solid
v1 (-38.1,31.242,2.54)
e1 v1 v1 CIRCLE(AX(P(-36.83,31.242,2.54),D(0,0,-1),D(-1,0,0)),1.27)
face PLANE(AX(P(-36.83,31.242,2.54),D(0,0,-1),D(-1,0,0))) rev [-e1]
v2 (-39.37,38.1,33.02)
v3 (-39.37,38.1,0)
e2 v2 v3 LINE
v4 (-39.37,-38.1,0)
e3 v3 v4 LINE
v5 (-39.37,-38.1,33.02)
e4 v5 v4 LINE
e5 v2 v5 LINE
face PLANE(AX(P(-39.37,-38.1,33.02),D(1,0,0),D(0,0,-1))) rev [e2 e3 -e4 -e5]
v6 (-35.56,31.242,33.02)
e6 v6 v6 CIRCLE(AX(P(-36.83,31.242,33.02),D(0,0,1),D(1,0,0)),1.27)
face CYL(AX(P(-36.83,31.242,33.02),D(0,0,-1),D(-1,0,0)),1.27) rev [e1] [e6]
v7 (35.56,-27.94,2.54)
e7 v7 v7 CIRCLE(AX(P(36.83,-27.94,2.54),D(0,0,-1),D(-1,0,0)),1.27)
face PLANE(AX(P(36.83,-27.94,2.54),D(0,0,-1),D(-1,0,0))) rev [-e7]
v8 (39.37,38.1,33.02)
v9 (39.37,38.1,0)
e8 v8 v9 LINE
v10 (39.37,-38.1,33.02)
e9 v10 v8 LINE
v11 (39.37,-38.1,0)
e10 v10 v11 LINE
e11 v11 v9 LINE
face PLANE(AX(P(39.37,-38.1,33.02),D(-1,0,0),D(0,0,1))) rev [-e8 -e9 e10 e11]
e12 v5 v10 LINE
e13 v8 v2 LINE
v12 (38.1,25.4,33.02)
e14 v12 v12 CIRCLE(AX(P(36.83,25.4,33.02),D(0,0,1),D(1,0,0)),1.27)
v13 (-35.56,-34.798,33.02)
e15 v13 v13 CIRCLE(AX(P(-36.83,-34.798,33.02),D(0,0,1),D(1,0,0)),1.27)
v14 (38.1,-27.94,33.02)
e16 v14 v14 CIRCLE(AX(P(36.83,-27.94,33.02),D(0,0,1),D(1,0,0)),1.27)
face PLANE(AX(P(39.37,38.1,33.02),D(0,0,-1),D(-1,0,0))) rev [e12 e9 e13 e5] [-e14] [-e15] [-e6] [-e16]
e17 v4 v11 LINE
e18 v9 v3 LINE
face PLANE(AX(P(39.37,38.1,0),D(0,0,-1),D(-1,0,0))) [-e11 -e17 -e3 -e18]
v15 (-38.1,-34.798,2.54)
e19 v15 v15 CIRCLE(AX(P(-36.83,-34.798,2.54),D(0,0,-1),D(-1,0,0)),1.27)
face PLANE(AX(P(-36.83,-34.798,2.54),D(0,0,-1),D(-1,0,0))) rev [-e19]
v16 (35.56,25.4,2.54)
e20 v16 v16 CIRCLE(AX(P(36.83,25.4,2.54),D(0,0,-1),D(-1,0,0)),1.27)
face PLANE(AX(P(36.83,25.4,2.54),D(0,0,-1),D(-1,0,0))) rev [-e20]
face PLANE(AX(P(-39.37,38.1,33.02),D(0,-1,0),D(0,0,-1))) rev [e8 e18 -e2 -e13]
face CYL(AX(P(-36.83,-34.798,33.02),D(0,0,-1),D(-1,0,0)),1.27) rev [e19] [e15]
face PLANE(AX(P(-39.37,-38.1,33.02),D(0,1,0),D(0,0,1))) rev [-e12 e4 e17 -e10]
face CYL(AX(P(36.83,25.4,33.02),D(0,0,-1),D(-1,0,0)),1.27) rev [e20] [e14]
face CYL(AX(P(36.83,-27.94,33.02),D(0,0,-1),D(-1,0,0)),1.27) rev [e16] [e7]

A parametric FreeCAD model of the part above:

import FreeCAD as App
import Part
import Sketcher
from FreeCAD import Vector
Q = App.Units.Quantity


def add_polygon(sketch, points):
    """Adds a closed chain of lines whose ends are joined by coincident constraints."""
    first, n = sketch.GeometryCount, len(points)
    for a, b in zip(points, points[1:] + points[:1]):
        sketch.addGeometry(Part.LineSegment(App.Vector(*a, 0), App.Vector(*b, 0)), False)
    for i in range(n):
        sketch.addConstraint(Sketcher.Constraint("Coincident", first + i, 2, first + (i + 1) % n, 1))

doc = App.newDocument("Part")
body = doc.addObject("PartDesign::Body", "Body")

# Sketch on XY plane
sketch1 = body.newObject("Sketcher::SketchObject", "Sketch")
sketch1.AttachmentSupport = (doc.getObject("XY_Plane"), [""])
sketch1.MapMode = "FlatFace"
add_polygon(sketch1, [(-39.4, 38.1), (-39.4, -38.1), (39.4, -38.1), (39.4, 38.1)])  # lines 0-3
sketch1.addGeometry(Part.Circle(Vector(-36.8, -34.8, 0), Vector(0, 0, 1), 1.3), False)  # 4
sketch1.addGeometry(Part.Circle(Vector(36.8, -27.9, 0), Vector(0, 0, 1), 1.3), False)  # 5
sketch1.addGeometry(Part.Circle(Vector(-36.8, 31.2, 0), Vector(0, 0, 1), 1.3), False)  # 6
sketch1.addGeometry(Part.Circle(Vector(36.8, 25.4, 0), Vector(0, 0, 1), 1.3), False)  # 7
sketch1.addConstraint([
    Sketcher.Constraint("Vertical", 0),
    Sketcher.Constraint("Horizontal", 1),
    Sketcher.Constraint("Vertical", 2),
    Sketcher.Constraint("Horizontal", 3),
    Sketcher.Constraint("Equal", 4, 5),
    Sketcher.Constraint("Equal", 5, 6),
    Sketcher.Constraint("Equal", 6, 7),
    Sketcher.Constraint("Symmetric", 0, 2, 2, 2, -1, 1),
    Sketcher.Constraint("Vertical", 4, 3, 6, 3),
    Sketcher.Constraint("Vertical", 5, 3, 7, 3),
    Sketcher.Constraint("Diameter", 4, Q("0.1 in")),
    Sketcher.Constraint("DistanceY", 0, 2, 0, 1, Q("3 in")),
    Sketcher.Constraint("DistanceX", 1, 1, 1, 2, Q("3.1 in")),
    Sketcher.Constraint("DistanceY", -1, 1, 7, 3, Q("1 in")),
    Sketcher.Constraint("DistanceX", 0, 2, 5, 3, Q("3 in")),
    Sketcher.Constraint("DistanceX", 4, 3, 1, 2, Q("3 in")),
    Sketcher.Constraint("DistanceY", 5, 3, -1, 1, Q("1.1 in")),
    Sketcher.Constraint("DistanceY", 4, 3, 6, 3, Q("2.6 in")),
    Sketcher.Constraint("DistanceY", 4, 3, -1, 1, Q("1.37 in")),
])
pad1 = body.newObject("PartDesign::Pad", "Pad")
pad1.Profile = sketch1
pad1.Length = Q("1.3 in")

# Sketch on XY plane
sketch2 = body.newObject("Sketcher::SketchObject", "Sketch001")
sketch2.AttachmentSupport = (doc.getObject("XY_Plane"), [""])
sketch2.MapMode = "FlatFace"
sketch2.addGeometry(Part.Circle(Vector(36.8, 25.4, 0), Vector(0, 0, 1), 1.3), False)
sketch2.addConstraint([
    Sketcher.Constraint("Diameter", 0, Q("0.1 in")),
    Sketcher.Constraint("DistanceY", -1, 1, 0, 3, Q("1 in")),
    Sketcher.Constraint("DistanceX", -1, 1, 0, 3, Q("1.45 in")),
])
pad2 = body.newObject("PartDesign::Pad", "Pad001")
pad2.Profile = sketch2
pad2.Length = Q("0.1 in")

# Sketch on XY plane
sketch3 = body.newObject("Sketcher::SketchObject", "Sketch002")
sketch3.AttachmentSupport = (doc.getObject("XY_Plane"), [""])
sketch3.MapMode = "FlatFace"
sketch3.addGeometry([
    Part.Circle(Vector(-36.8, 31.2, 0), Vector(0, 0, 1), 1.3),
    Part.Circle(Vector(-36.8, -34.8, 0), Vector(0, 0, 1), 1.3),
    Part.Circle(Vector(36.8, -27.9, 0), Vector(0, 0, 1), 1.3),
], False)
sketch3.addConstraint([
    Sketcher.Constraint("Equal", 0, 1),
    Sketcher.Constraint("Equal", 1, 2),
    Sketcher.Constraint("Vertical", 0, 3, 1, 3),
    Sketcher.Constraint("Diameter", 0, Q("0.1 in")),
    Sketcher.Constraint("DistanceY", 2, 3, -1, 1, Q("1.1 in")),
    Sketcher.Constraint("DistanceY", 1, 3, 0, 3, Q("2.6 in")),
    Sketcher.Constraint("DistanceX", 1, 3, 2, 3, Q("2.9 in")),
    Sketcher.Constraint("DistanceX", 0, 3, -1, 1, Q("1.45 in")),
    Sketcher.Constraint("DistanceY", -1, 1, 0, 3, Q("1.23 in")),
])
pad3 = body.newObject("PartDesign::Pad", "Pad002")
pad3.Profile = sketch3
pad3.Length = Q("0.1 in")

doc.recompute()
